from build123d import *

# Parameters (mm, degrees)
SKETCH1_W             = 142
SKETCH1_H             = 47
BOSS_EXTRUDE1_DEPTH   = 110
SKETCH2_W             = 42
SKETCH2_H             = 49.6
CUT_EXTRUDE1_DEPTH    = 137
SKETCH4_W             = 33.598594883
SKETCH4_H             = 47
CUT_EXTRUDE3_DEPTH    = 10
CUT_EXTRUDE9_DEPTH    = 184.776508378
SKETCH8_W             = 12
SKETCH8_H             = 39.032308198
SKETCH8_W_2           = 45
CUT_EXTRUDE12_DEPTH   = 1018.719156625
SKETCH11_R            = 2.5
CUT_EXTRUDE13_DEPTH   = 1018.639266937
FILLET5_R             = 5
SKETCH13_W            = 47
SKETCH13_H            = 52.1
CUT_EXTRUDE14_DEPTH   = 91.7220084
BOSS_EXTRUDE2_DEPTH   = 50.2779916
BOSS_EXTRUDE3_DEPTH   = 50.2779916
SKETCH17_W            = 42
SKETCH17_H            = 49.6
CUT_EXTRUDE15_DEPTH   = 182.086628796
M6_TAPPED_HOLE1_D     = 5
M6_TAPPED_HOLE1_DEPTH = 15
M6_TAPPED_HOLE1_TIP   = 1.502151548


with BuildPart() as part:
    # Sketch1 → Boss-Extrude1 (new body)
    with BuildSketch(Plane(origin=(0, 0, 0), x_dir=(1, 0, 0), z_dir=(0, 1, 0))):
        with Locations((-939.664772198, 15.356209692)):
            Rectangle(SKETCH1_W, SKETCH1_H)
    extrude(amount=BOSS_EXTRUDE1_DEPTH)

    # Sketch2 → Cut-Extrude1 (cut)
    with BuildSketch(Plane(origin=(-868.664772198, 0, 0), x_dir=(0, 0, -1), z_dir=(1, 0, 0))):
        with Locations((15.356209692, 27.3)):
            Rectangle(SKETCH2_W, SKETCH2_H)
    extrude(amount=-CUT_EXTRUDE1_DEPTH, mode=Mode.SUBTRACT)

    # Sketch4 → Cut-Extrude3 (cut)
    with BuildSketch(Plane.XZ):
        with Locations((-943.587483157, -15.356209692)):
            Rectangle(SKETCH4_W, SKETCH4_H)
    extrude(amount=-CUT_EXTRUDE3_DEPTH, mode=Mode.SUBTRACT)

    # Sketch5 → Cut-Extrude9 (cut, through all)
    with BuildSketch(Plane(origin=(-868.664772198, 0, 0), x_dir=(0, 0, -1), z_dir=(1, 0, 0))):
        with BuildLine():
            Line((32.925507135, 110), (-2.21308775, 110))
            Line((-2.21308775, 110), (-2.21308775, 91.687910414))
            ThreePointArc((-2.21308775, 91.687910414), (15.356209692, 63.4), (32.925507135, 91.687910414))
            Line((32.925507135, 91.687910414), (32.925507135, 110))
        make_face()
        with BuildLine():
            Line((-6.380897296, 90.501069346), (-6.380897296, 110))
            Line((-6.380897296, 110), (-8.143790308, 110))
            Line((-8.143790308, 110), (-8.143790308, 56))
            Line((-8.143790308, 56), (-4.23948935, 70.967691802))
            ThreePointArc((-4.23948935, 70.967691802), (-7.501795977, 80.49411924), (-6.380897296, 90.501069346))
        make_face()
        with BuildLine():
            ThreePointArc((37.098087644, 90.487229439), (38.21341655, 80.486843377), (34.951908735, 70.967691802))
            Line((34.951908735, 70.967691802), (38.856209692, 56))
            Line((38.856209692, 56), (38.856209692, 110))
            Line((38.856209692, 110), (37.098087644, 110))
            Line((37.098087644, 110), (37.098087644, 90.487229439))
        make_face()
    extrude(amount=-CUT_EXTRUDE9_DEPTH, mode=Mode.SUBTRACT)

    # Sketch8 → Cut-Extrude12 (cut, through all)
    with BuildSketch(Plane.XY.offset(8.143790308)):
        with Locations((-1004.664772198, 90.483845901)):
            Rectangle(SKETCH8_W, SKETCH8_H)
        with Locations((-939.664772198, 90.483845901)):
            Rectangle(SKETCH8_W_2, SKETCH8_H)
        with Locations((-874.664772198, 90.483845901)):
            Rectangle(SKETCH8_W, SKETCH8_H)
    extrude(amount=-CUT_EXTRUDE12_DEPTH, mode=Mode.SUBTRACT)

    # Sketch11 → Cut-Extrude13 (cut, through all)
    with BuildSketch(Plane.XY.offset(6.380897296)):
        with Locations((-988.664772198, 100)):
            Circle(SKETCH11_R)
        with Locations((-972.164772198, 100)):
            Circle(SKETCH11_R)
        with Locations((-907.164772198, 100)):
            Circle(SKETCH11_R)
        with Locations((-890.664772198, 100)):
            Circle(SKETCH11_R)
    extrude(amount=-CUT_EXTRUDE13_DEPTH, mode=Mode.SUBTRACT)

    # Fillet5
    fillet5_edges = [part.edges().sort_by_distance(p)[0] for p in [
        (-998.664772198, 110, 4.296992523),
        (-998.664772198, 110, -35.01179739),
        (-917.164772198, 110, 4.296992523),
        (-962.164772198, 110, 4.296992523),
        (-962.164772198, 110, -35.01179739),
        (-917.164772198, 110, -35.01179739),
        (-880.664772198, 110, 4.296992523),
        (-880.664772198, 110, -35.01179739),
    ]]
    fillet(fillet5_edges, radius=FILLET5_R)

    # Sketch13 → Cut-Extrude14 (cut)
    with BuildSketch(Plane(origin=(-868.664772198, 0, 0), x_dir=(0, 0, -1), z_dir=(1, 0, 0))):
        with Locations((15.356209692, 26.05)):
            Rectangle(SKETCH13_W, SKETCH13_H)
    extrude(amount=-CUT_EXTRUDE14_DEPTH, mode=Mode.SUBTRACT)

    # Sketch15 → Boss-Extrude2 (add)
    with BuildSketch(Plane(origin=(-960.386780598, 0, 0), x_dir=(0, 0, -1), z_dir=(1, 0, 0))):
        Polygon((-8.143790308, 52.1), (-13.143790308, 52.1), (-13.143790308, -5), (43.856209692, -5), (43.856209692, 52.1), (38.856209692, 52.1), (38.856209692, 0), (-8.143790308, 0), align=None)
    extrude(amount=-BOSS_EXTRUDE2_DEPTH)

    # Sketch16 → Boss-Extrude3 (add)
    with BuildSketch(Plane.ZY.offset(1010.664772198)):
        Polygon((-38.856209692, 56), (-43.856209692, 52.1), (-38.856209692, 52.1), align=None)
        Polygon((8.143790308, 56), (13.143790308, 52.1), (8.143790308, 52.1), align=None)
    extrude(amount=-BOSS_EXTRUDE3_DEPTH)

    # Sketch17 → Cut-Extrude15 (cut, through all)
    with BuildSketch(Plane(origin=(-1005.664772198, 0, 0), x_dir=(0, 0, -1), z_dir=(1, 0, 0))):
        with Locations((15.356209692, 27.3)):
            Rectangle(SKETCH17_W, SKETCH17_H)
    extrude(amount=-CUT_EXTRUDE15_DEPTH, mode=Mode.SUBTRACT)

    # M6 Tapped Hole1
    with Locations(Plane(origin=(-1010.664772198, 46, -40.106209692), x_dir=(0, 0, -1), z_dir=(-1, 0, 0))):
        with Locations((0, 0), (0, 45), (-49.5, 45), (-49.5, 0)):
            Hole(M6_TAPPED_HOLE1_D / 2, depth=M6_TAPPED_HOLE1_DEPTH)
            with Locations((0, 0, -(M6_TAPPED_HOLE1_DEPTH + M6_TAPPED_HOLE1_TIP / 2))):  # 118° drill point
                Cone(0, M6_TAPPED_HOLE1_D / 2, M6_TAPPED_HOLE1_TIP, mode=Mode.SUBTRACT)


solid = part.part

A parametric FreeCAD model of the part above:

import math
import FreeCAD as App
import Part
import Sketcher

V = App.Vector


def edges_at(feature, points):
    """Names of the edges that pass closest to the given points."""
    edges = feature.Shape.Edges
    near = lambda p: min(range(len(edges)), key=lambda i: edges[i].distToShape(Part.Vertex(*p))[0])
    return sorted({f"Edge{near(p) + 1}" for p in points})


def add_polygon(sketch, points):
    """Adds a closed chain of lines whose ends are joined by coincident constraints."""
    first, n = sketch.GeometryCount, len(points)
    for a, b in zip(points, points[1:] + points[:1]):
        sketch.addGeometry(Part.LineSegment(App.Vector(*a, 0), App.Vector(*b, 0)), False)
    for i in range(n):
        sketch.addConstraint(Sketcher.Constraint("Coincident", first + i, 2, first + (i + 1) % n, 1))

doc = App.newDocument("Part")
params = doc.addObject("Spreadsheet::Sheet", "Params")
for row, (alias, value) in enumerate([
    ("sketch1_width", "142 mm"),
    ("sketch1_height", "47 mm"),
    ("pad1_length", "110 mm"),
    ("sketch2_height", "42 mm"),
    ("sketch2_width", "49.6 mm"),
    ("pocket1_length", "137 mm"),
    ("sketch3_height", "47 mm"),
    ("pocket2_length", "10 mm"),
    ("sketch4_radius", "19.6 mm"),
    ("sketch4_width", "54 mm"),
    ("sketch5_width", "12 mm"),
    ("sketch5_width2", "45 mm"),
    ("sketch6_diameter", "5 mm"),
    ("fillet_radius", "5 mm"),
    ("sketch7_height", "47 mm"),
    ("sketch7_width", "52.1 mm"),
    ("pocket6_length", "91.722008 mm"),
    ("sketch8_height", "5 mm"),
    ("sketch8_height2", "57 mm"),
    ("sketch8_width", "57.1 mm"),
    ("sketch8_width2", "52.1 mm"),
    ("pad2_length", "50.277992 mm"),
    ("sketch9_height", "5 mm"),
    ("sketch9_width", "3.9 mm"),
    ("pad3_length", "50.277992 mm"),
    ("sketch10_height", "42 mm"),
    ("sketch10_width", "49.6 mm"),
    ("sketch11_diameter", "5 mm"),
    ("hole_diameter", "5 mm"),
    ("hole_depth", "15 mm"),
], start=1):
    params.set(f"A{row}", alias)
    params.set(f"B{row}", "=" + value)
    params.setAlias(f"B{row}", alias)

body = doc.addObject("PartDesign::Body", "Body")

# Sketch on XZ plane
sketch1 = doc.addObject("Sketcher::SketchObject", "Sketch")
body.addObject(sketch1)
sketch1.AttachmentSupport = (doc.XZ_Plane, [""])
sketch1.MapMode = "FlatFace"
add_polygon(sketch1, [(-1011, -39), (-1011, 8), (-869, 8), (-869, -39)])  # lines 0-3
sketch1.addConstraint(Sketcher.Constraint("Vertical", 0))
sketch1.addConstraint(Sketcher.Constraint("Horizontal", 1))
sketch1.addConstraint(Sketcher.Constraint("Vertical", 2))
sketch1.addConstraint(Sketcher.Constraint("Horizontal", 3))
sketch1.addConstraint(Sketcher.Constraint("DistanceX", 1, 1, 1, 2, 142.0))
sketch1.addConstraint(Sketcher.Constraint("DistanceY", 0, 1, 0, 2, 47.0))
sketch1.addConstraint(Sketcher.Constraint("DistanceY", -1, 1, 0, 2, 8.14379))
sketch1.addConstraint(Sketcher.Constraint("DistanceX", 0, 2, -1, 1, 1010.664772))
sketch1.setExpression("Constraints[8]", "Params.sketch1_width")
sketch1.setExpression("Constraints[9]", "Params.sketch1_height")
pad1 = doc.addObject("PartDesign::Pad", "Pad")
body.addObject(pad1)
pad1.Profile = sketch1
pad1.setExpression("Length", "Params.pad1_length")
pad1.Reversed = True

# Sketch on YZ plane
sketch2 = doc.addObject("Sketcher::SketchObject", "Sketch001")
body.addObject(sketch2)
sketch2.AttachmentSupport = (doc.YZ_Plane, [""])
sketch2.MapMode = "FlatFace"
sketch2.AttachmentOffset = App.Placement(V(0, 0, -868.664772), App.Rotation())
add_polygon(sketch2, [(52, 6), (2, 6), (2, -36), (52, -36)])  # lines 0-3
sketch2.addConstraint(Sketcher.Constraint("Horizontal", 0))
sketch2.addConstraint(Sketcher.Constraint("Vertical", 1))
sketch2.addConstraint(Sketcher.Constraint("Horizontal", 2))
sketch2.addConstraint(Sketcher.Constraint("Vertical", 3))
sketch2.addConstraint(Sketcher.Constraint("DistanceY", 1, 2, 1, 1, 42.0))
sketch2.addConstraint(Sketcher.Constraint("DistanceX", 0, 2, 0, 1, 49.6))
sketch2.addConstraint(Sketcher.Constraint("DistanceX", -1, 1, 0, 2, 2.5))
sketch2.addConstraint(Sketcher.Constraint("DistanceY", -1, 1, 0, 2, 5.64379))
sketch2.setExpression("Constraints[8]", "Params.sketch2_height")
sketch2.setExpression("Constraints[9]", "Params.sketch2_width")
pocket1 = doc.addObject("PartDesign::Pocket", "Pocket")
body.addObject(pocket1)
pocket1.Profile = sketch2
pocket1.setExpression("Length", "Params.pocket1_length")

# Sketch on XZ plane
sketch3 = doc.addObject("Sketcher::SketchObject", "Sketch002")
body.addObject(sketch3)
sketch3.AttachmentSupport = (doc.XZ_Plane, [""])
sketch3.MapMode = "FlatFace"
add_polygon(sketch3, [(-960, 8), (-960, -39), (-927, -39), (-927, 8)])  # lines 0-3
sketch3.addConstraint(Sketcher.Constraint("Vertical", 0))
sketch3.addConstraint(Sketcher.Constraint("Horizontal", 1))
sketch3.addConstraint(Sketcher.Constraint("Vertical", 2))
sketch3.addConstraint(Sketcher.Constraint("Horizontal", 3))
sketch3.addConstraint(Sketcher.Constraint("DistanceY", 0, 2, 0, 1, 47.0))
sketch3.addConstraint(Sketcher.Constraint("DistanceX", 1, 1, 1, 2, 33.598595))
sketch3.addConstraint(Sketcher.Constraint("DistanceX", 0, 2, -1, 1, 960.386781))
sketch3.addConstraint(Sketcher.Constraint("DistanceY", 0, 2, -1, 1, 38.85621))
sketch3.setExpression("Constraints[8]", "Params.sketch3_height")
pocket2 = doc.addObject("PartDesign::Pocket", "Pocket001")
body.addObject(pocket2)
pocket2.Profile = sketch3
pocket2.setExpression("Length", "Params.pocket2_length")

# Sketch on YZ plane
sketch4 = doc.addObject("Sketcher::SketchObject", "Sketch003")
body.addObject(sketch4)
sketch4.AttachmentSupport = (doc.YZ_Plane, [""])
sketch4.MapMode = "FlatFace"
sketch4.AttachmentOffset = App.Placement(V(0, 0, -868.664772), App.Rotation())
sketch4.addGeometry(Part.LineSegment(V(110, -32.9, 0), V(110, 2.2, 0)), False)
sketch4.addGeometry(Part.LineSegment(V(110, 2.2, 0), V(91.7, 2.2, 0)), False)
sketch4.addGeometry(Part.ArcOfCircle(Part.Circle(V(83, -15.4, 0), V(0, 0, 1), 19.6), math.radians(64), math.radians(296)), False)
sketch4.addGeometry(Part.LineSegment(V(91.7, -32.9, 0), V(110, -32.9, 0)), False)
sketch4.addGeometry(Part.LineSegment(V(90.5, 6.4, 0), V(110, 6.4, 0)), False)
sketch4.addGeometry(Part.LineSegment(V(110, 6.4, 0), V(110, 8.1, 0)), False)
sketch4.addGeometry(Part.LineSegment(V(110, 8.1, 0), V(56, 8.1, 0)), False)
sketch4.addGeometry(Part.LineSegment(V(56, 8.1, 0), V(71, 4.2, 0)), False)
sketch4.addGeometry(Part.ArcOfCircle(Part.Circle(V(83, -15.4, 0), V(0, 0, 1), 23), math.radians(71), math.radians(122)), False)
sketch4.addGeometry(Part.ArcOfCircle(Part.Circle(V(83, -15.4, 0), V(0, 0, 1), 23), math.radians(-122), math.radians(-71)), False)
sketch4.addGeometry(Part.LineSegment(V(71, -35, 0), V(56, -38.9, 0)), False)
sketch4.addGeometry(Part.LineSegment(V(56, -38.9, 0), V(110, -38.9, 0)), False)
sketch4.addGeometry(Part.LineSegment(V(110, -38.9, 0), V(110, -37.1, 0)), False)
sketch4.addGeometry(Part.LineSegment(V(110, -37.1, 0), V(90.5, -37.1, 0)), False)
sketch4.addConstraint(Sketcher.Constraint("Coincident", 0, 2, 1, 1))
sketch4.addConstraint(Sketcher.Constraint("Coincident", 1, 2, 2, 1))
sketch4.addConstraint(Sketcher.Constraint("Coincident", 2, 2, 3, 1))
sketch4.addConstraint(Sketcher.Constraint("Coincident", 3, 2, 0, 1))
sketch4.addConstraint(Sketcher.Constraint("Coincident", 4, 2, 5, 1))
sketch4.addConstraint(Sketcher.Constraint("Coincident", 5, 2, 6, 1))
sketch4.addConstraint(Sketcher.Constraint("Coincident", 6, 2, 7, 1))
sketch4.addConstraint(Sketcher.Constraint("Coincident", 7, 2, 8, 2))
sketch4.addConstraint(Sketcher.Constraint("Coincident", 8, 1, 4, 1))
sketch4.addConstraint(Sketcher.Constraint("Coincident", 9, 1, 10, 1))
sketch4.addConstraint(Sketcher.Constraint("Coincident", 10, 2, 11, 1))
sketch4.addConstraint(Sketcher.Constraint("Coincident", 11, 2, 12, 1))
sketch4.addConstraint(Sketcher.Constraint("Coincident", 12, 2, 13, 1))
sketch4.addConstraint(Sketcher.Constraint("Coincident", 13, 2, 9, 2))
sketch4.addConstraint(Sketcher.Constraint("Vertical", 0))
sketch4.addConstraint(Sketcher.Constraint("Horizontal", 1))
sketch4.addConstraint(Sketcher.Constraint("Horizontal", 3))
sketch4.addConstraint(Sketcher.Constraint("Horizontal", 4))
sketch4.addConstraint(Sketcher.Constraint("Vertical", 5))
sketch4.addConstraint(Sketcher.Constraint("Horizontal", 6))
sketch4.addConstraint(Sketcher.Constraint("Horizontal", 11))
sketch4.addConstraint(Sketcher.Constraint("Vertical", 12))
sketch4.addConstraint(Sketcher.Constraint("Horizontal", 13))
sketch4.addConstraint(Sketcher.Constraint("Coincident", 8, 3, 2, 3))
sketch4.addConstraint(Sketcher.Constraint("Coincident", 9, 3, 2, 3))
sketch4.addConstraint(Sketcher.Constraint("Equal", 8, 9))
sketch4.addConstraint(Sketcher.Constraint("Vertical", 1, 2, 2, 2))
sketch4.addConstraint(Sketcher.Constraint("Vertical", 3, 2, 4, 2))
sketch4.addConstraint(Sketcher.Constraint("Vertical", 7, 2, 9, 1))
sketch4.addConstraint(Sketcher.Constraint("Vertical", 6, 2, 10, 2))
sketch4.addConstraint(Sketcher.Constraint("Vertical", 5, 2, 11, 2))
sketch4.addConstraint(Sketcher.Constraint("Equal", 7, 10))
sketch4.addConstraint(Sketcher.Constraint("Radius", 2, 19.6))
sketch4.addConstraint(Sketcher.Constraint("DistanceX", 6, 2, 6, 1, 54.0))
sketch4.addConstraint(Sketcher.Constraint("DistanceX", -1, 1, 2, 3, 83.0))
sketch4.addConstraint(Sketcher.Constraint("DistanceX", -1, 1, 0, 2, 110.0))
sketch4.addConstraint(Sketcher.Constraint("DistanceY", 8, 3, 5, 2, 23.5))
sketch4.addConstraint(Sketcher.Constraint("Radius", 8, 22.994953))
sketch4.addConstraint(Sketcher.Constraint("DistanceX", 1, 2, 1, 1, 18.31209))
sketch4.addConstraint(Sketcher.Constraint("DistanceX", 4, 1, 4, 2, 19.498931))
sketch4.addConstraint(Sketcher.Constraint("DistanceX", 13, 2, 13, 1, 19.512771))
sketch4.addConstraint(Sketcher.Constraint("DistanceY", 7, 2, 6, 2, 3.904301))
sketch4.addConstraint(Sketcher.Constraint("DistanceY", 2, 3, -1, 1, 15.35621))
sketch4.setExpression("Constraints[32]", "Params.sketch4_radius")
sketch4.setExpression("Constraints[33]", "Params.sketch4_width")
pocket3 = doc.addObject("PartDesign::Pocket", "Pocket002")
body.addObject(pocket3)
pocket3.Profile = sketch4
pocket3.Type = "ThroughAll"

# Sketch on XY plane
sketch5 = doc.addObject("Sketcher::SketchObject", "Sketch004")
body.addObject(sketch5)
sketch5.AttachmentSupport = (doc.XY_Plane, [""])
sketch5.MapMode = "FlatFace"
sketch5.AttachmentOffset = App.Placement(V(0, 0, 8.14379), App.Rotation())
add_polygon(sketch5, [(-1011, 110), (-1011, 71), (-999, 71), (-999, 110)])  # lines 0-3
add_polygon(sketch5, [(-962, 110), (-962, 71), (-917, 71), (-917, 110)])  # lines 4-7
add_polygon(sketch5, [(-881, 110), (-881, 71), (-869, 71), (-869, 110)])  # lines 8-11
sketch5.addConstraint(Sketcher.Constraint("Vertical", 0))
sketch5.addConstraint(Sketcher.Constraint("Horizontal", 1))
sketch5.addConstraint(Sketcher.Constraint("Vertical", 2))
sketch5.addConstraint(Sketcher.Constraint("Horizontal", 3))
sketch5.addConstraint(Sketcher.Constraint("Vertical", 4))
sketch5.addConstraint(Sketcher.Constraint("Horizontal", 5))
sketch5.addConstraint(Sketcher.Constraint("Vertical", 6))
sketch5.addConstraint(Sketcher.Constraint("Horizontal", 7))
sketch5.addConstraint(Sketcher.Constraint("Vertical", 8))
sketch5.addConstraint(Sketcher.Constraint("Horizontal", 9))
sketch5.addConstraint(Sketcher.Constraint("Vertical", 10))
sketch5.addConstraint(Sketcher.Constraint("Horizontal", 11))
sketch5.addConstraint(Sketcher.Constraint("Horizontal", 1, 2, 4, 2))
sketch5.addConstraint(Sketcher.Constraint("Horizontal", 3, 2, 6, 2))
sketch5.addConstraint(Sketcher.Constraint("Horizontal", 5, 2, 8, 2))
sketch5.addConstraint(Sketcher.Constraint("Horizontal", 7, 2, 10, 2))
sketch5.addConstraint(Sketcher.Constraint("Equal", 3, 9))
sketch5.addConstraint(Sketcher.Constraint("DistanceX", 1, 1, 1, 2, 12.0))
sketch5.addConstraint(Sketcher.Constraint("DistanceX", 5, 1, 5, 2, 45.0))
sketch5.addConstraint(Sketcher.Constraint("DistanceY", -1, 1, 2, 2, 110.0))
sketch5.addConstraint(Sketcher.Constraint("DistanceX", 1, 2, 8, 2, 118.0))
sketch5.addConstraint(Sketcher.Constraint("DistanceX", 1, 2, 4, 2, 36.5))
sketch5.addConstraint(Sketcher.Constraint("DistanceY", 0, 2, 0, 1, 39.032308))
sketch5.addConstraint(Sketcher.Constraint("DistanceX", 0, 2, -1, 1, 1010.664772))
sketch5.setExpression("Constraints[29]", "Params.sketch5_width")
sketch5.setExpression("Constraints[30]", "Params.sketch5_width2")
pocket4 = doc.addObject("PartDesign::Pocket", "Pocket003")
body.addObject(pocket4)
pocket4.Profile = sketch5
pocket4.Type = "ThroughAll"

# Sketch on XY plane
sketch6 = doc.addObject("Sketcher::SketchObject", "Sketch005")
body.addObject(sketch6)
sketch6.AttachmentSupport = (doc.XY_Plane, [""])
sketch6.MapMode = "FlatFace"
sketch6.AttachmentOffset = App.Placement(V(0, 0, 6.380897), App.Rotation())
sketch6.addGeometry(Part.Circle(V(-988.7, 100, 0), V(0, 0, 1), 2.5), False)
sketch6.addGeometry(Part.Circle(V(-972.2, 100, 0), V(0, 0, 1), 2.5), False)
sketch6.addGeometry(Part.Circle(V(-907.2, 100, 0), V(0, 0, 1), 2.5), False)
sketch6.addGeometry(Part.Circle(V(-890.7, 100, 0), V(0, 0, 1), 2.5), False)
sketch6.addConstraint(Sketcher.Constraint("Equal", 0, 1))
sketch6.addConstraint(Sketcher.Constraint("Equal", 1, 2))
sketch6.addConstraint(Sketcher.Constraint("Equal", 2, 3))
sketch6.addConstraint(Sketcher.Constraint("Horizontal", 0, 3, 1, 3))
sketch6.addConstraint(Sketcher.Constraint("Horizontal", 1, 3, 2, 3))
sketch6.addConstraint(Sketcher.Constraint("Horizontal", 2, 3, 3, 3))
sketch6.addConstraint(Sketcher.Constraint("Diameter", 0, 5.0))
sketch6.addConstraint(Sketcher.Constraint("DistanceY", -1, 1, 0, 3, 100.0))
sketch6.addConstraint(Sketcher.Constraint("DistanceX", 1, 3, 2, 3, 65.0))
sketch6.addConstraint(Sketcher.Constraint("DistanceX", 0, 3, 3, 3, 98.0))
sketch6.addConstraint(Sketcher.Constraint("DistanceX", 0, 3, 1, 3, 16.5))
sketch6.addConstraint(Sketcher.Constraint("DistanceX", 0, 3, -1, 1, 988.664772))
sketch6.setExpression("Constraints[6]", "Params.sketch6_diameter")
pocket5 = doc.addObject("PartDesign::Pocket", "Pocket004")
body.addObject(pocket5)
pocket5.Profile = sketch6
pocket5.Type = "ThroughAll"
doc.recompute()

fillet = doc.addObject("PartDesign::Fillet", "Fillet")
body.addObject(fillet)
fillet.Base = (pocket5, edges_at(pocket5, [
    (-998.665, 110, 4.297),
    (-998.665, 110, -35.012),
    (-917.165, 110, 4.297),
    (-962.165, 110, 4.297),
    (-962.165, 110, -35.012),
    (-917.165, 110, -35.012),
    (-880.665, 110, 4.297),
    (-880.665, 110, -35.012),
]))
fillet.setExpression("Radius", "Params.fillet_radius")

# Sketch on YZ plane
sketch7 = doc.addObject("Sketcher::SketchObject", "Sketch006")
body.addObject(sketch7)
sketch7.AttachmentSupport = (doc.YZ_Plane, [""])
sketch7.MapMode = "FlatFace"
sketch7.AttachmentOffset = App.Placement(V(0, 0, -868.664772), App.Rotation())
add_polygon(sketch7, [(52, 8), (0, 8), (0, -39), (52, -39)])  # lines 0-3
sketch7.addConstraint(Sketcher.Constraint("Horizontal", 0))
sketch7.addConstraint(Sketcher.Constraint("Vertical", 1))
sketch7.addConstraint(Sketcher.Constraint("Horizontal", 2))
sketch7.addConstraint(Sketcher.Constraint("Vertical", 3))
sketch7.addConstraint(Sketcher.Constraint("PointOnObject", 0, 2, -2))
sketch7.addConstraint(Sketcher.Constraint("DistanceY", 1, 2, 1, 1, 47.0))
sketch7.addConstraint(Sketcher.Constraint("DistanceX", 0, 2, 0, 1, 52.1))
sketch7.addConstraint(Sketcher.Constraint("DistanceY", -1, 1, 0, 2, 8.14379))
sketch7.setExpression("Constraints[9]", "Params.sketch7_height")
sketch7.setExpression("Constraints[10]", "Params.sketch7_width")
pocket6 = doc.addObject("PartDesign::Pocket", "Pocket005")
body.addObject(pocket6)
pocket6.Profile = sketch7
pocket6.setExpression("Length", "Params.pocket6_length")

# Sketch on YZ plane
sketch8 = doc.addObject("Sketcher::SketchObject", "Sketch007")
body.addObject(sketch8)
sketch8.AttachmentSupport = (doc.YZ_Plane, [""])
sketch8.MapMode = "FlatFace"
sketch8.AttachmentOffset = App.Placement(V(0, 0, -960.386781), App.Rotation())
add_polygon(sketch8, [(52, 8), (52, 13), (-5, 13), (-5, -44), (52, -44), (52, -39), (0, -39), (0, 8)])  # lines 0-7
sketch8.addConstraint(Sketcher.Constraint("Vertical", 0))
sketch8.addConstraint(Sketcher.Constraint("Horizontal", 1))
sketch8.addConstraint(Sketcher.Constraint("Vertical", 2))
sketch8.addConstraint(Sketcher.Constraint("Horizontal", 3))
sketch8.addConstraint(Sketcher.Constraint("Vertical", 4))
sketch8.addConstraint(Sketcher.Constraint("Horizontal", 5))
sketch8.addConstraint(Sketcher.Constraint("Vertical", 6))
sketch8.addConstraint(Sketcher.Constraint("Horizontal", 7))
sketch8.addConstraint(Sketcher.Constraint("PointOnObject", 5, 2, -2))
sketch8.addConstraint(Sketcher.Constraint("Vertical", 0, 2, 3, 2))
sketch8.addConstraint(Sketcher.Constraint("Equal", 0, 4))
sketch8.addConstraint(Sketcher.Constraint("DistanceY", 0, 1, 0, 2, 5.0))
sketch8.addConstraint(Sketcher.Constraint("DistanceY", 2, 2, 2, 1, 57.0))
sketch8.addConstraint(Sketcher.Constraint("DistanceX", 1, 2, 1, 1, 57.1))
sketch8.addConstraint(Sketcher.Constraint("DistanceX", 5, 2, 5, 1, 52.1))
sketch8.addConstraint(Sketcher.Constraint("DistanceY", -1, 1, 0, 2, 13.14379))
sketch8.setExpression("Constraints[19]", "Params.sketch8_height")
sketch8.setExpression("Constraints[20]", "Params.sketch8_height2")
sketch8.setExpression("Constraints[21]", "Params.sketch8_width")
sketch8.setExpression("Constraints[22]", "Params.sketch8_width2")
pad2 = doc.addObject("PartDesign::Pad", "Pad001")
body.addObject(pad2)
pad2.Profile = sketch8
pad2.setExpression("Length", "Params.pad2_length")
pad2.Reversed = True

# Sketch on YZ plane
sketch9 = doc.addObject("Sketcher::SketchObject", "Sketch008")
body.addObject(sketch9)
sketch9.AttachmentSupport = (doc.YZ_Plane, [""])
sketch9.MapMode = "FlatFace"
sketch9.AttachmentOffset = App.Placement(V(0, 0, -1010.664772), App.Rotation())
add_polygon(sketch9, [(56, -38.9), (52.1, -43.9), (52.1, -38.9)])  # lines 0-2
add_polygon(sketch9, [(52.1, 13.1), (56, 8.1), (52.1, 8.1)])  # lines 3-5
sketch9.addConstraint(Sketcher.Constraint("Vertical", 1))
sketch9.addConstraint(Sketcher.Constraint("Horizontal", 2))
sketch9.addConstraint(Sketcher.Constraint("Horizontal", 4))
sketch9.addConstraint(Sketcher.Constraint("Vertical", 5))
sketch9.addConstraint(Sketcher.Constraint("Vertical", 2, 2, 3, 2))
sketch9.addConstraint(Sketcher.Constraint("Vertical", 1, 2, 4, 2))
sketch9.addConstraint(Sketcher.Constraint("Equal", 1, 5))
sketch9.addConstraint(Sketcher.Constraint("DistanceY", 1, 1, 1, 2, 5.0))
sketch9.addConstraint(Sketcher.Constraint("DistanceX", 2, 1, 2, 2, 3.9))
sketch9.addConstraint(Sketcher.Constraint("DistanceX", -1, 1, 2, 2, 56.0))
sketch9.addConstraint(Sketcher.Constraint("DistanceY", 2, 2, 3, 2, 47.0))
sketch9.addConstraint(Sketcher.Constraint("DistanceY", 0, 2, -1, 1, 43.85621))
sketch9.setExpression("Constraints[13]", "Params.sketch9_height")
sketch9.setExpression("Constraints[14]", "Params.sketch9_width")
pad3 = doc.addObject("PartDesign::Pad", "Pad002")
body.addObject(pad3)
pad3.Profile = sketch9
pad3.setExpression("Length", "Params.pad3_length")

# Sketch on YZ plane
sketch10 = doc.addObject("Sketcher::SketchObject", "Sketch009")
body.addObject(sketch10)
sketch10.AttachmentSupport = (doc.YZ_Plane, [""])
sketch10.MapMode = "FlatFace"
sketch10.AttachmentOffset = App.Placement(V(0, 0, -1005.664772), App.Rotation())
add_polygon(sketch10, [(52, 6), (2, 6), (2, -36), (52, -36)])  # lines 0-3
sketch10.addConstraint(Sketcher.Constraint("Horizontal", 0))
sketch10.addConstraint(Sketcher.Constraint("Vertical", 1))
sketch10.addConstraint(Sketcher.Constraint("Horizontal", 2))
sketch10.addConstraint(Sketcher.Constraint("Vertical", 3))
sketch10.addConstraint(Sketcher.Constraint("DistanceY", 1, 2, 1, 1, 42.0))
sketch10.addConstraint(Sketcher.Constraint("DistanceX", 0, 2, 0, 1, 49.6))
sketch10.addConstraint(Sketcher.Constraint("DistanceX", -1, 1, 0, 2, 2.5))
sketch10.addConstraint(Sketcher.Constraint("DistanceY", -1, 1, 0, 2, 5.64379))
sketch10.setExpression("Constraints[8]", "Params.sketch10_height")
sketch10.setExpression("Constraints[9]", "Params.sketch10_width")
pocket7 = doc.addObject("PartDesign::Pocket", "Pocket006")
body.addObject(pocket7)
pocket7.Profile = sketch10
pocket7.Type = "ThroughAll"

# Sketch on YZ plane
sketch11 = doc.addObject("Sketcher::SketchObject", "Sketch010")
body.addObject(sketch11)
sketch11.AttachmentSupport = (doc.YZ_Plane, [""])
sketch11.MapMode = "FlatFace"
sketch11.AttachmentOffset = App.Placement(V(0, 0, -1010.664772), App.Rotation())
sketch11.addGeometry(Part.Circle(V(46, -40.1, 0), V(0, 0, 1), 2.5), False)
sketch11.addGeometry(Part.Circle(V(1, -40.1, 0), V(0, 0, 1), 2.5), False)
sketch11.addGeometry(Part.Circle(V(1, 9.4, 0), V(0, 0, 1), 2.5), False)
sketch11.addGeometry(Part.Circle(V(46, 9.4, 0), V(0, 0, 1), 2.5), False)
sketch11.addConstraint(Sketcher.Constraint("Equal", 0, 1))
sketch11.addConstraint(Sketcher.Constraint("Equal", 1, 2))
sketch11.addConstraint(Sketcher.Constraint("Equal", 2, 3))
sketch11.addConstraint(Sketcher.Constraint("Horizontal", 0, 3, 1, 3))
sketch11.addConstraint(Sketcher.Constraint("Horizontal", 2, 3, 3, 3))
sketch11.addConstraint(Sketcher.Constraint("Vertical", 1, 3, 2, 3))
sketch11.addConstraint(Sketcher.Constraint("Vertical", 0, 3, 3, 3))
sketch11.addConstraint(Sketcher.Constraint("Diameter", 0, 5.0))
sketch11.addConstraint(Sketcher.Constraint("DistanceX", -1, 1, 0, 3, 46.0))
sketch11.addConstraint(Sketcher.Constraint("DistanceX", -1, 1, 1, 3, 1.0))
sketch11.addConstraint(Sketcher.Constraint("DistanceY", 1, 3, 2, 3, 49.5))
sketch11.addConstraint(Sketcher.Constraint("DistanceY", 0, 3, -1, 1, 40.10621))
sketch11.setExpression("Constraints[7]", "Params.sketch11_diameter")
doc.recompute()
hole = doc.addObject("PartDesign::Hole", "Hole")
body.addObject(hole)
hole.Profile = sketch11
hole.ThreadType = "None"
hole.setExpression("Diameter", "Params.hole_diameter")
hole.DepthType = "Dimension"
hole.setExpression("Depth", "Params.hole_depth")
hole.DrillPoint = "Angled"
hole.DrillPointAngle = 118
hole.Reversed = True

doc.recompute()
